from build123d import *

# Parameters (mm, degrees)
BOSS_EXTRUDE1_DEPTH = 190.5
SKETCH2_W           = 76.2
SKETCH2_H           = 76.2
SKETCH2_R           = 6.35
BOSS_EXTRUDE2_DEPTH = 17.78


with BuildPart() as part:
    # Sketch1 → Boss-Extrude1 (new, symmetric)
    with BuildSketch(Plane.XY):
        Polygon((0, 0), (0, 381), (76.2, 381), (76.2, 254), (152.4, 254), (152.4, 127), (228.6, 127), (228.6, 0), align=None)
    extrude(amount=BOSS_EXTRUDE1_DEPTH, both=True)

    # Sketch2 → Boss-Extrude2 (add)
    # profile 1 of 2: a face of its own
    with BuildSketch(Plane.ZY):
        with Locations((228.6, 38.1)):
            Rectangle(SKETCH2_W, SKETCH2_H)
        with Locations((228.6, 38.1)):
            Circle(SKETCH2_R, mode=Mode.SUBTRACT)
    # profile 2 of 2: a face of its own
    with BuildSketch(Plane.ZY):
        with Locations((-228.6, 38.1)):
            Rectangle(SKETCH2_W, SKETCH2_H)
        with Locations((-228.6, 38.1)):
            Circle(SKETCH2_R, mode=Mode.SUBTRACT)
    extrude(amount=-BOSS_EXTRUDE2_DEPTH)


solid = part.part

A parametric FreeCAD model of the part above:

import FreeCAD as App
import Part
import Sketcher
from FreeCAD import Vector
Q = App.Units.Quantity

doc = App.newDocument("Part")
params = doc.addObject("Spreadsheet::Sheet", "Params")
for row, (alias, value) in enumerate([
    ("sketch1_width", "9 in"),
    ("sketch1_height", "15 in"),
    ("pad1_length", "15 in"),
    ("sketch2_diameter", "0.5 in"),
    ("sketch2_width", "3 in"),
    ("pad2_length", "0.7 in"),
], start=1):
    params.set(f"A{row}", alias)
    params.set(f"B{row}", "=" + value)
    params.setAlias(f"B{row}", alias)

body = doc.addObject("PartDesign::Body", "Body")

# Sketch on XY plane
sketch1 = body.newObject("Sketcher::SketchObject", "Sketch")
sketch1.AttachmentSupport = (doc.getObject("XY_Plane"), [""])
sketch1.MapMode = "FlatFace"
sketch1.addGeometry([
    Part.LineSegment(Vector(0, 381, 0), Vector(0, 0, 0)),  # 0
    Part.LineSegment(Vector(0, 0, 0), Vector(229, 0, 0)),  # 1
    Part.LineSegment(Vector(229, 0, 0), Vector(229, 127, 0)),  # 2
    Part.LineSegment(Vector(229, 127, 0), Vector(152, 127, 0)),  # 3
    Part.LineSegment(Vector(152, 127, 0), Vector(152, 254, 0)),  # 4
    Part.LineSegment(Vector(152, 254, 0), Vector(76, 254, 0)),  # 5
    Part.LineSegment(Vector(76, 254, 0), Vector(76, 381, 0)),  # 6
    Part.LineSegment(Vector(76, 381, 0), Vector(0, 381, 0)),  # 7
], False)
sketch1.addConstraint([
    Sketcher.Constraint("Coincident", 0, 2, 1, 1),
    Sketcher.Constraint("Coincident", 1, 2, 2, 1),
    Sketcher.Constraint("Coincident", 2, 2, 3, 1),
    Sketcher.Constraint("Coincident", 3, 2, 4, 1),
    Sketcher.Constraint("Coincident", 4, 2, 5, 1),
    Sketcher.Constraint("Coincident", 5, 2, 6, 1),
    Sketcher.Constraint("Coincident", 6, 2, 7, 1),
    Sketcher.Constraint("Coincident", 7, 2, 0, 1),
    Sketcher.Constraint("Vertical", 0),
    Sketcher.Constraint("Horizontal", 1),
    Sketcher.Constraint("Vertical", 2),
    Sketcher.Constraint("Horizontal", 3),
    Sketcher.Constraint("Vertical", 4),
    Sketcher.Constraint("Horizontal", 5),
    Sketcher.Constraint("Vertical", 6),
    Sketcher.Constraint("Horizontal", 7),
    Sketcher.Constraint("Coincident", 0, 2, -1, 1),
    Sketcher.Constraint("Equal", 3, 5),
    Sketcher.Constraint("Equal", 5, 7),
    Sketcher.Constraint("Equal", 2, 4),
    Sketcher.Constraint("Equal", 4, 6),
    Sketcher.Constraint("DistanceX", 1, 1, 1, 2, Q("9 in")),
    Sketcher.Constraint("DistanceY", 0, 2, 0, 1, Q("15 in")),
])
sketch1.setExpression("Constraints[21]", "Params.sketch1_width")
sketch1.setExpression("Constraints[22]", "Params.sketch1_height")
pad1 = body.newObject("PartDesign::Pad", "Pad")
pad1.Profile = sketch1
pad1.setExpression("Length", "Params.pad1_length")
pad1.Midplane = True

# Sketch on YZ plane
sketch2 = body.newObject("Sketcher::SketchObject", "Sketch001")
sketch2.AttachmentSupport = (doc.getObject("YZ_Plane"), [""])
sketch2.MapMode = "FlatFace"
sketch2.addGeometry([
    Part.LineSegment(Vector(76, 190, 0), Vector(0, 190, 0)),  # 0
    Part.LineSegment(Vector(0, 190, 0), Vector(0, 267, 0)),  # 1
    Part.LineSegment(Vector(0, 267, 0), Vector(76, 267, 0)),  # 2
    Part.LineSegment(Vector(76, 267, 0), Vector(76, 190, 0)),  # 3
    Part.Circle(Vector(38, 229, 0), Vector(0, 0, 1), 6),  # 4
    Part.LineSegment(Vector(76, -267, 0), Vector(0, -267, 0)),  # 5
    Part.LineSegment(Vector(0, -267, 0), Vector(0, -190, 0)),  # 6
    Part.LineSegment(Vector(0, -190, 0), Vector(76, -190, 0)),  # 7
    Part.LineSegment(Vector(76, -190, 0), Vector(76, -267, 0)),  # 8
    Part.Circle(Vector(38, -229, 0), Vector(0, 0, 1), 6),  # 9
], False)
sketch2.addConstraint([
    Sketcher.Constraint("Coincident", 0, 2, 1, 1),
    Sketcher.Constraint("Coincident", 1, 2, 2, 1),
    Sketcher.Constraint("Coincident", 2, 2, 3, 1),
    Sketcher.Constraint("Coincident", 3, 2, 0, 1),
    Sketcher.Constraint("Coincident", 5, 2, 6, 1),
    Sketcher.Constraint("Coincident", 6, 2, 7, 1),
    Sketcher.Constraint("Coincident", 7, 2, 8, 1),
    Sketcher.Constraint("Coincident", 8, 2, 5, 1),
    Sketcher.Constraint("Horizontal", 0),
    Sketcher.Constraint("Vertical", 1),
    Sketcher.Constraint("Horizontal", 2),
    Sketcher.Constraint("Vertical", 3),
    Sketcher.Constraint("Horizontal", 5),
    Sketcher.Constraint("Vertical", 6),
    Sketcher.Constraint("Horizontal", 7),
    Sketcher.Constraint("Vertical", 8),
    Sketcher.Constraint("Equal", 4, 9),
    Sketcher.Constraint("Symmetric", 1, 2, 5, 2, -1, 1),
    Sketcher.Constraint("Symmetric", 4, 3, 9, 3, -1),
    Sketcher.Constraint("Symmetric", 0, 2, 6, 2, -1),
    Sketcher.Constraint("Vertical", 3, 2, 7, 2),
    Sketcher.Constraint("Equal", 7, 1),
    Sketcher.Constraint("Diameter", 4, Q("0.5 in")),
    Sketcher.Constraint("DistanceX", 0, 2, 0, 1, Q("3 in")),
    Sketcher.Constraint("DistanceY", -1, 1, 4, 3, Q("9 in")),
    Sketcher.Constraint("DistanceY", 5, 2, 0, 2, Q("18 in")),
    Sketcher.Constraint("DistanceX", -1, 1, 4, 3, Q("1.5 in")),
])
sketch2.setExpression("Constraints[22]", "Params.sketch2_diameter")
sketch2.setExpression("Constraints[23]", "Params.sketch2_width")
pad2 = body.newObject("PartDesign::Pad", "Pad001")
pad2.Profile = sketch2
pad2.setExpression("Length", "Params.pad2_length")

doc.recompute()
